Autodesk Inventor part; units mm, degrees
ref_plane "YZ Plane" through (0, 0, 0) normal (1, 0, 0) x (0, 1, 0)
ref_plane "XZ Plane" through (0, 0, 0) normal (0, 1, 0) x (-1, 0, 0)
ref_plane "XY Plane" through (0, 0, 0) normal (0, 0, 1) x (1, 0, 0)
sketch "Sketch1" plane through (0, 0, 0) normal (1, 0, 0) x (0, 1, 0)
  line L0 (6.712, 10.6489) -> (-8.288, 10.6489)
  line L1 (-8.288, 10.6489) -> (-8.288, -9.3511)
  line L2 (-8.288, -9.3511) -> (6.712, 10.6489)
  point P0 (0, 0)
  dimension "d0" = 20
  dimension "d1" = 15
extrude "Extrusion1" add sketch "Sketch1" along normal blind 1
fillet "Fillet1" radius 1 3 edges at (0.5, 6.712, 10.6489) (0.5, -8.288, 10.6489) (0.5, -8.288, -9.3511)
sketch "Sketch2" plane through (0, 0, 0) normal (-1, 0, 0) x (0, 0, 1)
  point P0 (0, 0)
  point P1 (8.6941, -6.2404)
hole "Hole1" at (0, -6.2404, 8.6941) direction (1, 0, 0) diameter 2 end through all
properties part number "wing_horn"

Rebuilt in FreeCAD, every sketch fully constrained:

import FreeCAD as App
import Part
import Sketcher
from FreeCAD import Vector


def edges_at(feature, points):
    """Names of the edges that pass closest to the given points."""
    edges = feature.Shape.Edges
    near = lambda p: min(range(len(edges)), key=lambda i: edges[i].distToShape(Part.Vertex(*p))[0])
    return sorted({f"Edge{near(p) + 1}" for p in points})


def add_polygon(sketch, points):
    """Adds a closed chain of lines whose ends are joined by coincident constraints."""
    first, n = sketch.GeometryCount, len(points)
    for a, b in zip(points, points[1:] + points[:1]):
        sketch.addGeometry(Part.LineSegment(App.Vector(*a, 0), App.Vector(*b, 0)), False)
    for i in range(n):
        sketch.addConstraint(Sketcher.Constraint("Coincident", first + i, 2, first + (i + 1) % n, 1))

doc = App.newDocument("Part")
params = doc.addObject("Spreadsheet::Sheet", "Params")
for row, (alias, value) in enumerate([
    ("sketch1_width", "15 mm"),
    ("sketch1_height", "20 mm"),
    ("pad1_length", "1 mm"),
    ("fillet_radius", "1 mm"),
    ("sketch2_diameter", "2 mm"),
    ("hole_diameter", "2 mm"),
], start=1):
    params.set(f"A{row}", alias)
    params.set(f"B{row}", "=" + value)
    params.setAlias(f"B{row}", alias)

body = doc.addObject("PartDesign::Body", "Body")

# Sketch on YZ plane
sketch1 = doc.addObject("Sketcher::SketchObject", "Sketch")
body.addObject(sketch1)
sketch1.AttachmentSupport = (doc.YZ_Plane, [""])
sketch1.MapMode = "FlatFace"
add_polygon(sketch1, [(-8, -9), (7, 11), (-8, 11)])  # lines 0-2
sketch1.addConstraint([
    Sketcher.Constraint("Horizontal", 1),
    Sketcher.Constraint("Vertical", 2),
    Sketcher.Constraint("DistanceX", 1, 2, 1, 1, 15.0),
    Sketcher.Constraint("DistanceY", 2, 2, 2, 1, 20.0),
    Sketcher.Constraint("DistanceX", -1, 1, 0, 2, 6.712),
    Sketcher.Constraint("DistanceY", -1, 1, 0, 2, 10.649),
])
sketch1.setExpression("Constraints[5]", "Params.sketch1_width")
sketch1.setExpression("Constraints[6]", "Params.sketch1_height")
pad1 = doc.addObject("PartDesign::Pad", "Pad")
body.addObject(pad1)
pad1.Profile = sketch1
pad1.setExpression("Length", "Params.pad1_length")
doc.recompute()

fillet = doc.addObject("PartDesign::Fillet", "Fillet")
body.addObject(fillet)
fillet.Base = (pad1, edges_at(pad1, [(0.5, 6.712, 10.649), (0.5, -8.288, 10.649), (0.5, -8.288, -9.351)]))
fillet.setExpression("Radius", "Params.fillet_radius")

# Sketch on YZ plane
sketch2 = doc.addObject("Sketcher::SketchObject", "Sketch001")
body.addObject(sketch2)
sketch2.AttachmentSupport = (doc.YZ_Plane, [""])
sketch2.MapMode = "FlatFace"
sketch2.addGeometry(Part.Circle(Vector(-6.2, 8.7, 0), Vector(0, 0, 1), 1), False)
sketch2.addConstraint([
    Sketcher.Constraint("Diameter", 0, 2.0),
    Sketcher.Constraint("DistanceY", -1, 1, 0, 3, 8.694),
    Sketcher.Constraint("DistanceX", 0, 3, -1, 1, 6.2404),
])
sketch2.setExpression("Constraints[0]", "Params.sketch2_diameter")
doc.recompute()
hole = doc.addObject("PartDesign::Hole", "Hole")
body.addObject(hole)
hole.Profile = sketch2
hole.ThreadType = "None"
hole.setExpression("Diameter", "Params.hole_diameter")
hole.DepthType = "ThroughAll"
hole.Reversed = True

doc.recompute()
